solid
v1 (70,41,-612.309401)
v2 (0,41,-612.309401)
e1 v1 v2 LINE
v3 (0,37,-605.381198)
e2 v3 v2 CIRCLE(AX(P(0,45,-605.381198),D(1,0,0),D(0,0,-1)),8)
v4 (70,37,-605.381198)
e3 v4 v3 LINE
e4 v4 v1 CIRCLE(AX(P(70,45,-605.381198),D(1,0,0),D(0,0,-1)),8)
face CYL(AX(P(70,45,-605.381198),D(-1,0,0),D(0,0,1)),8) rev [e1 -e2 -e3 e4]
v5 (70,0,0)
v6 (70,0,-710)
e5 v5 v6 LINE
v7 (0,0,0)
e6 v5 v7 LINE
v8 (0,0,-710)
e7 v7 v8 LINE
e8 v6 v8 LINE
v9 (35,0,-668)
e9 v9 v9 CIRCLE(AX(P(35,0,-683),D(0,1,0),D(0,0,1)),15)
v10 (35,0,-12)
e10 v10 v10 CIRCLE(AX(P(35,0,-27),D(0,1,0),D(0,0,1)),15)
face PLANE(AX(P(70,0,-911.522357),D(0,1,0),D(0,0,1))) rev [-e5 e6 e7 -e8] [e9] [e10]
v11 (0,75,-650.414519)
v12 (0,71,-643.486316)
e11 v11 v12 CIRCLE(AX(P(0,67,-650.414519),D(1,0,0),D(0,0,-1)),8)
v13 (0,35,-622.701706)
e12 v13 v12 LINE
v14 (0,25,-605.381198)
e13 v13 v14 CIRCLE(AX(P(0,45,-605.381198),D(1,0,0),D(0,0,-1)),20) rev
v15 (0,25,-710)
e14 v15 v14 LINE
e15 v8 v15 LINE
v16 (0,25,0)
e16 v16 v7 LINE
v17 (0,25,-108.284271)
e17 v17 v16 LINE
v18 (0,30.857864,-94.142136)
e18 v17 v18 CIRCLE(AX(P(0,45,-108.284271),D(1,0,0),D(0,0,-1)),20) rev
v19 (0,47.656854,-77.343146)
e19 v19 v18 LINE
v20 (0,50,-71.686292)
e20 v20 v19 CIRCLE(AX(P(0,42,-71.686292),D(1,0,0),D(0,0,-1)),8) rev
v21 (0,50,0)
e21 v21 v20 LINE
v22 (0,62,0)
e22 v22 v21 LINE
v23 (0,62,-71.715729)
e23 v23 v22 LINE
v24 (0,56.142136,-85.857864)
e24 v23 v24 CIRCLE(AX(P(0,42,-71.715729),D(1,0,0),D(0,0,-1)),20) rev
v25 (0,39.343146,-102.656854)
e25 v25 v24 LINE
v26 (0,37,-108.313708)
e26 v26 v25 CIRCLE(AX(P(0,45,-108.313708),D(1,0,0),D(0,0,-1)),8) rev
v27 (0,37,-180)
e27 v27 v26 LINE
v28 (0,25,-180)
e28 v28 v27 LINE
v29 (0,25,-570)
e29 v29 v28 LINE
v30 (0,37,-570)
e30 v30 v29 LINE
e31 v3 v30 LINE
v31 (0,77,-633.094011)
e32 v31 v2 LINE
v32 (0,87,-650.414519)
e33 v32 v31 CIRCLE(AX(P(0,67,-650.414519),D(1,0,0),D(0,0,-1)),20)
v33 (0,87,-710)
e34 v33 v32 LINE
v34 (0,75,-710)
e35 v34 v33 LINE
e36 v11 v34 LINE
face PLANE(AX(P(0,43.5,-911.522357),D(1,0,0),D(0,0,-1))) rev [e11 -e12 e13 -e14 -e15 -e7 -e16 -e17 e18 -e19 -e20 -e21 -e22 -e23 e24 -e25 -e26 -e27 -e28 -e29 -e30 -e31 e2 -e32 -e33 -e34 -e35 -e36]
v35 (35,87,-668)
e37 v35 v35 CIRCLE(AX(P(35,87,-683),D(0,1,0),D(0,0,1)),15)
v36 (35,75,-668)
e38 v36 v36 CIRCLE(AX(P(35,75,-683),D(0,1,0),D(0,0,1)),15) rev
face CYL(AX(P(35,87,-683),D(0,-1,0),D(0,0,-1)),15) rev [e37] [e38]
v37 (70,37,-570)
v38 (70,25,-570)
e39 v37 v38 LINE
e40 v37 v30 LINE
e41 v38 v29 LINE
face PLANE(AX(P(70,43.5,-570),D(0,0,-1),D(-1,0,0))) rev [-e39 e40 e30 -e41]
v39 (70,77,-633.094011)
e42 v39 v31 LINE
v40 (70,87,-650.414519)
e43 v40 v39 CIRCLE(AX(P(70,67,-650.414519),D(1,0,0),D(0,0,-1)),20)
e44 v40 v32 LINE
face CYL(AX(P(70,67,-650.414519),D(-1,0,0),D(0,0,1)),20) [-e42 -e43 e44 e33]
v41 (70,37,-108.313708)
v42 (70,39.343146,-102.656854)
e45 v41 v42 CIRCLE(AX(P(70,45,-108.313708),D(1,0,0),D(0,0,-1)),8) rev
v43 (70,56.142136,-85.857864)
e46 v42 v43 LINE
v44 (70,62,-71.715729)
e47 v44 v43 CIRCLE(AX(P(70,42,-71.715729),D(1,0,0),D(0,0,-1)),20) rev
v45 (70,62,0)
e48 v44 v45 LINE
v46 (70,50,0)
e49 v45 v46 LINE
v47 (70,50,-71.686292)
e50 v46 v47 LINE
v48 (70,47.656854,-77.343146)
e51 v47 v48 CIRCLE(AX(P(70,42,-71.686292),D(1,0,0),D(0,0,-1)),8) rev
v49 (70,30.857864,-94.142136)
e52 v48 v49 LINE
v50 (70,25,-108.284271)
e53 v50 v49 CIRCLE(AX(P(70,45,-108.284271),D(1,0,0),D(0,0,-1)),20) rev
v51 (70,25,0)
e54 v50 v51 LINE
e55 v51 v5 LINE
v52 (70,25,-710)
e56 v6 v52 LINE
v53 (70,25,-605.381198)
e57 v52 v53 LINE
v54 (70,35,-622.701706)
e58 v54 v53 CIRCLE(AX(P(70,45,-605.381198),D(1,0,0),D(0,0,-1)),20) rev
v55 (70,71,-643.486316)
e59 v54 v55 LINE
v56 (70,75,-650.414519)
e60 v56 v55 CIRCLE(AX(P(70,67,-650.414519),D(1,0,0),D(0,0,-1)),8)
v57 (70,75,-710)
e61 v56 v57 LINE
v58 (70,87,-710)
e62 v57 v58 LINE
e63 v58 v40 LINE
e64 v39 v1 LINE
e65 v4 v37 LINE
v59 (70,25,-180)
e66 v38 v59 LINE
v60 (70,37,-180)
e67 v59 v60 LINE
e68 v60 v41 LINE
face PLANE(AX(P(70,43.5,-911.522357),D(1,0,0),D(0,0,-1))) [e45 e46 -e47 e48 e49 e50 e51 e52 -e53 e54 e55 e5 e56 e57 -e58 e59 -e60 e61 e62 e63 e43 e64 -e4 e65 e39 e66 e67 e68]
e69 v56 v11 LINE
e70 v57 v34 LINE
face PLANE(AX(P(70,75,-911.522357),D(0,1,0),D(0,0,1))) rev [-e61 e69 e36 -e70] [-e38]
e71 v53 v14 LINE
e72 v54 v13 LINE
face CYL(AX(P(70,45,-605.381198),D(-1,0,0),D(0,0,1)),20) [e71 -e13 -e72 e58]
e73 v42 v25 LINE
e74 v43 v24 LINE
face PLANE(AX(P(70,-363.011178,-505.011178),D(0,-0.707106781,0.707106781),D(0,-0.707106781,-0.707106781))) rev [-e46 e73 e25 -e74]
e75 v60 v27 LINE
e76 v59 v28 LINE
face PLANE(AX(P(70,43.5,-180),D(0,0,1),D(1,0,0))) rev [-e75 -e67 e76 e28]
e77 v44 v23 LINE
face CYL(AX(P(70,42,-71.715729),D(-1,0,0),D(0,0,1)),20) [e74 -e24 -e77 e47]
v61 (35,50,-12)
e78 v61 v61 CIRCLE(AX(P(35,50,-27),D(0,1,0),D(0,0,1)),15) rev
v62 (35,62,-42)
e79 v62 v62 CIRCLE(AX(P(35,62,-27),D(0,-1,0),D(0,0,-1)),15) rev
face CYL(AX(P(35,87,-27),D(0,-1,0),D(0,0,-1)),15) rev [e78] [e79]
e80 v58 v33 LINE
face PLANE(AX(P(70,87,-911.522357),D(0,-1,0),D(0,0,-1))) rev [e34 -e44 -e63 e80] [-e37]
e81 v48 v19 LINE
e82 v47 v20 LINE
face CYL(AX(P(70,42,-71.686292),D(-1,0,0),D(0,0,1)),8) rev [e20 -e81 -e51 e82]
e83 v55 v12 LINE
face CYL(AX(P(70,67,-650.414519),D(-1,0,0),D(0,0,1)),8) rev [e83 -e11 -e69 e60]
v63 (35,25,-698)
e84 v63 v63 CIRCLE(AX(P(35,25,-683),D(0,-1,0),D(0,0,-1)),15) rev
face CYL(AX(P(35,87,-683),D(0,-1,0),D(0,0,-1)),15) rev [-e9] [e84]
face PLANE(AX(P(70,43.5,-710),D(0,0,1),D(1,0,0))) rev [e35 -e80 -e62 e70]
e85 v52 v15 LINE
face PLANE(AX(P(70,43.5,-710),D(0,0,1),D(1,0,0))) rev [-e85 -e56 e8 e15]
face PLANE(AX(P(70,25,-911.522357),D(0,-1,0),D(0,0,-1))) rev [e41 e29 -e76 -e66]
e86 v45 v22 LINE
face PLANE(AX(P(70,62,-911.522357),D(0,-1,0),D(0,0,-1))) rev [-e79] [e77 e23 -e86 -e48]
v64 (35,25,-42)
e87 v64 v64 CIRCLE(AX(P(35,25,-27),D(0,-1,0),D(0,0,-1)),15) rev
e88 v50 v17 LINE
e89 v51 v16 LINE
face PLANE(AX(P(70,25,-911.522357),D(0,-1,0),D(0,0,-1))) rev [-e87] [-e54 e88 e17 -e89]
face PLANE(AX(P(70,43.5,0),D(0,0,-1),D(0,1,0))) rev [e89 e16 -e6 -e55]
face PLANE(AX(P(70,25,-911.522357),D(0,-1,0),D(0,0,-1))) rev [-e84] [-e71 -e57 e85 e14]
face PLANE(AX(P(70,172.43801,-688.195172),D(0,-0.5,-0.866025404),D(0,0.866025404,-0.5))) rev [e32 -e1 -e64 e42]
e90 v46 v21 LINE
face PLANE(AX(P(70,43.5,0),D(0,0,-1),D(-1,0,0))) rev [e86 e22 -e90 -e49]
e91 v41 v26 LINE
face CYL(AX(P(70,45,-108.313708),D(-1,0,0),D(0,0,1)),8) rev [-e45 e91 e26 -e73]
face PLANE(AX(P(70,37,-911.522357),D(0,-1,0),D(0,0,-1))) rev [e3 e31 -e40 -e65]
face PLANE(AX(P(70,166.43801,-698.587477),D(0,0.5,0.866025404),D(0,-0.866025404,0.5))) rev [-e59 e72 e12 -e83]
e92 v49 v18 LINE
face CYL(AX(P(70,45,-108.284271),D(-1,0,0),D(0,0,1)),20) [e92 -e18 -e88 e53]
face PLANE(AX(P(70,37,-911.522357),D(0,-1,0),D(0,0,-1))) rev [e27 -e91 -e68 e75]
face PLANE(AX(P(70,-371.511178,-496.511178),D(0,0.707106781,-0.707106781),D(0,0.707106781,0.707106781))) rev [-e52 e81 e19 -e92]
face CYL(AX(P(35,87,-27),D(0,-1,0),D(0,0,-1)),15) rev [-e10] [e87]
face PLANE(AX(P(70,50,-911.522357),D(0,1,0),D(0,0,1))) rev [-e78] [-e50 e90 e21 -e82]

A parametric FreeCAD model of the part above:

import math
import FreeCAD as App
import Part
import Sketcher
Q = App.Units.Quantity

doc = App.newDocument("Part")
body = doc.addObject("PartDesign::Body", "Body")

sketch1 = body.newObject("Sketcher::SketchObject", "Sketch")
sketch1.AttachmentSupport = (doc.getObject("YZ_Plane"), [""])
sketch1.MapMode = "FlatFace"
sketch1.addGeometry([
    Part.ArcOfCircle(Part.Circle(App.Vector(45, -108, 0), App.Vector(0, 0, 1), 20), math.radians(135), math.radians(180)),
    Part.LineSegment(App.Vector(25, -108, 0), App.Vector(25, 0, 0)),
    Part.LineSegment(App.Vector(25, 0, 0), App.Vector(0, 0, 0)),
    Part.LineSegment(App.Vector(0, 0, 0), App.Vector(0, -710, 0)),
    Part.LineSegment(App.Vector(0, -710, 0), App.Vector(25, -710, 0)),
    Part.LineSegment(App.Vector(25, -710, 0), App.Vector(25, -605, 0)),
    Part.ArcOfCircle(Part.Circle(App.Vector(45, -605, 0), App.Vector(0, 0, 1), 20), math.radians(180), math.radians(240)),
    Part.LineSegment(App.Vector(35, -623, 0), App.Vector(71, -643, 0)),
    Part.ArcOfCircle(Part.Circle(App.Vector(67, -650, 0), App.Vector(0, 0, 1), 8), math.radians(0), math.radians(60)),
    Part.LineSegment(App.Vector(75, -650, 0), App.Vector(75, -710, 0)),
    Part.LineSegment(App.Vector(75, -710, 0), App.Vector(87, -710, 0)),
    Part.LineSegment(App.Vector(87, -710, 0), App.Vector(87, -650, 0)),
    Part.ArcOfCircle(Part.Circle(App.Vector(67, -650, 0), App.Vector(0, 0, 1), 20), math.radians(0), math.radians(60)),
    Part.LineSegment(App.Vector(77, -633, 0), App.Vector(41, -612, 0)),
    Part.ArcOfCircle(Part.Circle(App.Vector(45, -605, 0), App.Vector(0, 0, 1), 8), math.radians(-180), math.radians(-120)),
    Part.LineSegment(App.Vector(37, -605, 0), App.Vector(37, -570, 0)),
    Part.LineSegment(App.Vector(37, -570, 0), App.Vector(25, -570, 0)),
    Part.LineSegment(App.Vector(25, -570, 0), App.Vector(25, -180, 0)),
    Part.LineSegment(App.Vector(25, -180, 0), App.Vector(37, -180, 0)),
    Part.LineSegment(App.Vector(37, -180, 0), App.Vector(37, -108, 0)),
    Part.ArcOfCircle(Part.Circle(App.Vector(45, -108, 0), App.Vector(0, 0, 1), 8), math.radians(135), math.radians(180)),
    Part.LineSegment(App.Vector(39, -103, 0), App.Vector(56, -86, 0)),
    Part.ArcOfCircle(Part.Circle(App.Vector(42, -72, 0), App.Vector(0, 0, 1), 20), math.radians(-45), math.radians(0)),
    Part.LineSegment(App.Vector(62, -72, 0), App.Vector(62, 0, 0)),
    Part.LineSegment(App.Vector(62, 0, 0), App.Vector(50, 0, 0)),
    Part.LineSegment(App.Vector(50, 0, 0), App.Vector(50, -72, 0)),
    Part.ArcOfCircle(Part.Circle(App.Vector(42, -72, 0), App.Vector(0, 0, 1), 8), math.radians(-45), math.radians(0)),
    Part.LineSegment(App.Vector(48, -77, 0), App.Vector(31, -94, 0)),
], False)
sketch1.addConstraint([
    Sketcher.Constraint("Tangent", 0, 2, 1, 1),
    Sketcher.Constraint("Coincident", 1, 2, 2, 1),
    Sketcher.Constraint("Coincident", 2, 2, 3, 1),
    Sketcher.Constraint("Coincident", 3, 2, 4, 1),
    Sketcher.Constraint("Coincident", 4, 2, 5, 1),
    Sketcher.Constraint("Tangent", 5, 2, 6, 1),
    Sketcher.Constraint("Tangent", 6, 2, 7, 1),
    Sketcher.Constraint("Tangent", 7, 2, 8, 2),
    Sketcher.Constraint("Tangent", 8, 1, 9, 1),
    Sketcher.Constraint("Coincident", 9, 2, 10, 1),
    Sketcher.Constraint("Coincident", 10, 2, 11, 1),
    Sketcher.Constraint("Tangent", 11, 2, 12, 1),
    Sketcher.Constraint("Tangent", 12, 2, 13, 1),
    Sketcher.Constraint("Tangent", 13, 2, 14, 2),
    Sketcher.Constraint("Tangent", 14, 1, 15, 1),
    Sketcher.Constraint("Coincident", 15, 2, 16, 1),
    Sketcher.Constraint("Coincident", 16, 2, 17, 1),
    Sketcher.Constraint("Coincident", 17, 2, 18, 1),
    Sketcher.Constraint("Coincident", 18, 2, 19, 1),
    Sketcher.Constraint("Tangent", 19, 2, 20, 2),
    Sketcher.Constraint("Tangent", 20, 1, 21, 1),
    Sketcher.Constraint("Tangent", 21, 2, 22, 1),
    Sketcher.Constraint("Tangent", 22, 2, 23, 1),
    Sketcher.Constraint("Coincident", 23, 2, 24, 1),
    Sketcher.Constraint("Coincident", 24, 2, 25, 1),
    Sketcher.Constraint("Tangent", 25, 2, 26, 2),
    Sketcher.Constraint("Tangent", 26, 1, 27, 1),
    Sketcher.Constraint("Tangent", 27, 2, 0, 1),
    Sketcher.Constraint("Vertical", 1),
    Sketcher.Constraint("Horizontal", 2),
    Sketcher.Constraint("Vertical", 3),
    Sketcher.Constraint("Horizontal", 4),
    Sketcher.Constraint("Vertical", 5),
    Sketcher.Constraint("Vertical", 9),
    Sketcher.Constraint("Horizontal", 10),
    Sketcher.Constraint("Vertical", 11),
    Sketcher.Constraint("Vertical", 15),
    Sketcher.Constraint("Horizontal", 16),
    Sketcher.Constraint("Vertical", 17),
    Sketcher.Constraint("Horizontal", 18),
    Sketcher.Constraint("Vertical", 19),
    Sketcher.Constraint("Vertical", 23),
    Sketcher.Constraint("Horizontal", 24),
    Sketcher.Constraint("Vertical", 25),
    Sketcher.Constraint("Coincident", 2, 2, -1, 1),
    Sketcher.Constraint("Coincident", 12, 3, 8, 3),
    Sketcher.Constraint("Coincident", 14, 3, 6, 3),
    Sketcher.Constraint("Equal", 0, 6),
    Sketcher.Constraint("Equal", 6, 12),
    Sketcher.Constraint("Equal", 8, 14),
    Sketcher.Constraint("Equal", 14, 20),
    Sketcher.Constraint("Equal", 12, 22),
    Sketcher.Constraint("Equal", 20, 26),
    Sketcher.Constraint("PointOnObject", 23, 2, -1),
    Sketcher.Constraint("Parallel", 21, 27),
    Sketcher.Constraint("Horizontal", 4, 2, 9, 2),
    Sketcher.Constraint("Vertical", 0, 3, 6, 3),
    Sketcher.Constraint("Vertical", 14, 3, 20, 3),
    Sketcher.Constraint("Vertical", 22, 3, 26, 3),
    Sketcher.Constraint("Vertical", 5, 2, 16, 2),
    Sketcher.Constraint("Equal", 19, 25),
    Sketcher.Constraint("Radius", 0, 20.0),
    Sketcher.Constraint("Radius", 8, 8.0),
    Sketcher.Constraint("DistanceX", 2, 2, 2, 1, 25.0),
    Sketcher.Constraint("DistanceY", 3, 2, 3, 1, 710.0),
    Sketcher.Constraint("DistanceY", 17, 1, 17, 2, 390.0),
    Sketcher.Constraint("Angle", 7, Q("-30 deg")),
    Sketcher.Constraint("Angle", 21, Q("45 deg")),
    Sketcher.Constraint("DistanceX", -1, 1, 8, 3, 67.0),
    Sketcher.Constraint("DistanceX", -1, 1, 22, 3, 42.0),
    Sketcher.Constraint("DistanceY", 15, 2, -1, 1, 570.0),
    Sketcher.Constraint("DistanceY", 1, 1, 1, 2, 108.284271),
    Sketcher.Constraint("DistanceY", 9, 2, 9, 1, 59.585481),
])
pad1 = body.newObject("PartDesign::Pad", "Pad")
pad1.Profile = sketch1
pad1.Length = 70

sketch2 = body.newObject("Sketcher::SketchObject", "Sketch001")
sketch2.AttachmentSupport = (doc.getObject("XZ_Plane"), [""])
sketch2.MapMode = "FlatFace"
sketch2.addGeometry([
    Part.Circle(App.Vector(35, -683, 0), App.Vector(0, 0, 1), 15),
    Part.Circle(App.Vector(35, -27, 0), App.Vector(0, 0, 1), 15),
], False)
sketch2.addConstraint([
    Sketcher.Constraint("Equal", 0, 1),
    Sketcher.Constraint("Vertical", 0, 3, 1, 3),
    Sketcher.Constraint("Diameter", 0, 30.0),
    Sketcher.Constraint("DistanceX", -1, 1, 0, 3, 35.0),
    Sketcher.Constraint("DistanceY", 0, 3, -1, 1, 683.0),
    Sketcher.Constraint("DistanceY", 1, 3, -1, 1, 27.0),
])
pocket1 = body.newObject("PartDesign::Pocket", "Pocket")
pocket1.Profile = sketch2
pocket1.Type = "ThroughAll"

doc.recompute()
